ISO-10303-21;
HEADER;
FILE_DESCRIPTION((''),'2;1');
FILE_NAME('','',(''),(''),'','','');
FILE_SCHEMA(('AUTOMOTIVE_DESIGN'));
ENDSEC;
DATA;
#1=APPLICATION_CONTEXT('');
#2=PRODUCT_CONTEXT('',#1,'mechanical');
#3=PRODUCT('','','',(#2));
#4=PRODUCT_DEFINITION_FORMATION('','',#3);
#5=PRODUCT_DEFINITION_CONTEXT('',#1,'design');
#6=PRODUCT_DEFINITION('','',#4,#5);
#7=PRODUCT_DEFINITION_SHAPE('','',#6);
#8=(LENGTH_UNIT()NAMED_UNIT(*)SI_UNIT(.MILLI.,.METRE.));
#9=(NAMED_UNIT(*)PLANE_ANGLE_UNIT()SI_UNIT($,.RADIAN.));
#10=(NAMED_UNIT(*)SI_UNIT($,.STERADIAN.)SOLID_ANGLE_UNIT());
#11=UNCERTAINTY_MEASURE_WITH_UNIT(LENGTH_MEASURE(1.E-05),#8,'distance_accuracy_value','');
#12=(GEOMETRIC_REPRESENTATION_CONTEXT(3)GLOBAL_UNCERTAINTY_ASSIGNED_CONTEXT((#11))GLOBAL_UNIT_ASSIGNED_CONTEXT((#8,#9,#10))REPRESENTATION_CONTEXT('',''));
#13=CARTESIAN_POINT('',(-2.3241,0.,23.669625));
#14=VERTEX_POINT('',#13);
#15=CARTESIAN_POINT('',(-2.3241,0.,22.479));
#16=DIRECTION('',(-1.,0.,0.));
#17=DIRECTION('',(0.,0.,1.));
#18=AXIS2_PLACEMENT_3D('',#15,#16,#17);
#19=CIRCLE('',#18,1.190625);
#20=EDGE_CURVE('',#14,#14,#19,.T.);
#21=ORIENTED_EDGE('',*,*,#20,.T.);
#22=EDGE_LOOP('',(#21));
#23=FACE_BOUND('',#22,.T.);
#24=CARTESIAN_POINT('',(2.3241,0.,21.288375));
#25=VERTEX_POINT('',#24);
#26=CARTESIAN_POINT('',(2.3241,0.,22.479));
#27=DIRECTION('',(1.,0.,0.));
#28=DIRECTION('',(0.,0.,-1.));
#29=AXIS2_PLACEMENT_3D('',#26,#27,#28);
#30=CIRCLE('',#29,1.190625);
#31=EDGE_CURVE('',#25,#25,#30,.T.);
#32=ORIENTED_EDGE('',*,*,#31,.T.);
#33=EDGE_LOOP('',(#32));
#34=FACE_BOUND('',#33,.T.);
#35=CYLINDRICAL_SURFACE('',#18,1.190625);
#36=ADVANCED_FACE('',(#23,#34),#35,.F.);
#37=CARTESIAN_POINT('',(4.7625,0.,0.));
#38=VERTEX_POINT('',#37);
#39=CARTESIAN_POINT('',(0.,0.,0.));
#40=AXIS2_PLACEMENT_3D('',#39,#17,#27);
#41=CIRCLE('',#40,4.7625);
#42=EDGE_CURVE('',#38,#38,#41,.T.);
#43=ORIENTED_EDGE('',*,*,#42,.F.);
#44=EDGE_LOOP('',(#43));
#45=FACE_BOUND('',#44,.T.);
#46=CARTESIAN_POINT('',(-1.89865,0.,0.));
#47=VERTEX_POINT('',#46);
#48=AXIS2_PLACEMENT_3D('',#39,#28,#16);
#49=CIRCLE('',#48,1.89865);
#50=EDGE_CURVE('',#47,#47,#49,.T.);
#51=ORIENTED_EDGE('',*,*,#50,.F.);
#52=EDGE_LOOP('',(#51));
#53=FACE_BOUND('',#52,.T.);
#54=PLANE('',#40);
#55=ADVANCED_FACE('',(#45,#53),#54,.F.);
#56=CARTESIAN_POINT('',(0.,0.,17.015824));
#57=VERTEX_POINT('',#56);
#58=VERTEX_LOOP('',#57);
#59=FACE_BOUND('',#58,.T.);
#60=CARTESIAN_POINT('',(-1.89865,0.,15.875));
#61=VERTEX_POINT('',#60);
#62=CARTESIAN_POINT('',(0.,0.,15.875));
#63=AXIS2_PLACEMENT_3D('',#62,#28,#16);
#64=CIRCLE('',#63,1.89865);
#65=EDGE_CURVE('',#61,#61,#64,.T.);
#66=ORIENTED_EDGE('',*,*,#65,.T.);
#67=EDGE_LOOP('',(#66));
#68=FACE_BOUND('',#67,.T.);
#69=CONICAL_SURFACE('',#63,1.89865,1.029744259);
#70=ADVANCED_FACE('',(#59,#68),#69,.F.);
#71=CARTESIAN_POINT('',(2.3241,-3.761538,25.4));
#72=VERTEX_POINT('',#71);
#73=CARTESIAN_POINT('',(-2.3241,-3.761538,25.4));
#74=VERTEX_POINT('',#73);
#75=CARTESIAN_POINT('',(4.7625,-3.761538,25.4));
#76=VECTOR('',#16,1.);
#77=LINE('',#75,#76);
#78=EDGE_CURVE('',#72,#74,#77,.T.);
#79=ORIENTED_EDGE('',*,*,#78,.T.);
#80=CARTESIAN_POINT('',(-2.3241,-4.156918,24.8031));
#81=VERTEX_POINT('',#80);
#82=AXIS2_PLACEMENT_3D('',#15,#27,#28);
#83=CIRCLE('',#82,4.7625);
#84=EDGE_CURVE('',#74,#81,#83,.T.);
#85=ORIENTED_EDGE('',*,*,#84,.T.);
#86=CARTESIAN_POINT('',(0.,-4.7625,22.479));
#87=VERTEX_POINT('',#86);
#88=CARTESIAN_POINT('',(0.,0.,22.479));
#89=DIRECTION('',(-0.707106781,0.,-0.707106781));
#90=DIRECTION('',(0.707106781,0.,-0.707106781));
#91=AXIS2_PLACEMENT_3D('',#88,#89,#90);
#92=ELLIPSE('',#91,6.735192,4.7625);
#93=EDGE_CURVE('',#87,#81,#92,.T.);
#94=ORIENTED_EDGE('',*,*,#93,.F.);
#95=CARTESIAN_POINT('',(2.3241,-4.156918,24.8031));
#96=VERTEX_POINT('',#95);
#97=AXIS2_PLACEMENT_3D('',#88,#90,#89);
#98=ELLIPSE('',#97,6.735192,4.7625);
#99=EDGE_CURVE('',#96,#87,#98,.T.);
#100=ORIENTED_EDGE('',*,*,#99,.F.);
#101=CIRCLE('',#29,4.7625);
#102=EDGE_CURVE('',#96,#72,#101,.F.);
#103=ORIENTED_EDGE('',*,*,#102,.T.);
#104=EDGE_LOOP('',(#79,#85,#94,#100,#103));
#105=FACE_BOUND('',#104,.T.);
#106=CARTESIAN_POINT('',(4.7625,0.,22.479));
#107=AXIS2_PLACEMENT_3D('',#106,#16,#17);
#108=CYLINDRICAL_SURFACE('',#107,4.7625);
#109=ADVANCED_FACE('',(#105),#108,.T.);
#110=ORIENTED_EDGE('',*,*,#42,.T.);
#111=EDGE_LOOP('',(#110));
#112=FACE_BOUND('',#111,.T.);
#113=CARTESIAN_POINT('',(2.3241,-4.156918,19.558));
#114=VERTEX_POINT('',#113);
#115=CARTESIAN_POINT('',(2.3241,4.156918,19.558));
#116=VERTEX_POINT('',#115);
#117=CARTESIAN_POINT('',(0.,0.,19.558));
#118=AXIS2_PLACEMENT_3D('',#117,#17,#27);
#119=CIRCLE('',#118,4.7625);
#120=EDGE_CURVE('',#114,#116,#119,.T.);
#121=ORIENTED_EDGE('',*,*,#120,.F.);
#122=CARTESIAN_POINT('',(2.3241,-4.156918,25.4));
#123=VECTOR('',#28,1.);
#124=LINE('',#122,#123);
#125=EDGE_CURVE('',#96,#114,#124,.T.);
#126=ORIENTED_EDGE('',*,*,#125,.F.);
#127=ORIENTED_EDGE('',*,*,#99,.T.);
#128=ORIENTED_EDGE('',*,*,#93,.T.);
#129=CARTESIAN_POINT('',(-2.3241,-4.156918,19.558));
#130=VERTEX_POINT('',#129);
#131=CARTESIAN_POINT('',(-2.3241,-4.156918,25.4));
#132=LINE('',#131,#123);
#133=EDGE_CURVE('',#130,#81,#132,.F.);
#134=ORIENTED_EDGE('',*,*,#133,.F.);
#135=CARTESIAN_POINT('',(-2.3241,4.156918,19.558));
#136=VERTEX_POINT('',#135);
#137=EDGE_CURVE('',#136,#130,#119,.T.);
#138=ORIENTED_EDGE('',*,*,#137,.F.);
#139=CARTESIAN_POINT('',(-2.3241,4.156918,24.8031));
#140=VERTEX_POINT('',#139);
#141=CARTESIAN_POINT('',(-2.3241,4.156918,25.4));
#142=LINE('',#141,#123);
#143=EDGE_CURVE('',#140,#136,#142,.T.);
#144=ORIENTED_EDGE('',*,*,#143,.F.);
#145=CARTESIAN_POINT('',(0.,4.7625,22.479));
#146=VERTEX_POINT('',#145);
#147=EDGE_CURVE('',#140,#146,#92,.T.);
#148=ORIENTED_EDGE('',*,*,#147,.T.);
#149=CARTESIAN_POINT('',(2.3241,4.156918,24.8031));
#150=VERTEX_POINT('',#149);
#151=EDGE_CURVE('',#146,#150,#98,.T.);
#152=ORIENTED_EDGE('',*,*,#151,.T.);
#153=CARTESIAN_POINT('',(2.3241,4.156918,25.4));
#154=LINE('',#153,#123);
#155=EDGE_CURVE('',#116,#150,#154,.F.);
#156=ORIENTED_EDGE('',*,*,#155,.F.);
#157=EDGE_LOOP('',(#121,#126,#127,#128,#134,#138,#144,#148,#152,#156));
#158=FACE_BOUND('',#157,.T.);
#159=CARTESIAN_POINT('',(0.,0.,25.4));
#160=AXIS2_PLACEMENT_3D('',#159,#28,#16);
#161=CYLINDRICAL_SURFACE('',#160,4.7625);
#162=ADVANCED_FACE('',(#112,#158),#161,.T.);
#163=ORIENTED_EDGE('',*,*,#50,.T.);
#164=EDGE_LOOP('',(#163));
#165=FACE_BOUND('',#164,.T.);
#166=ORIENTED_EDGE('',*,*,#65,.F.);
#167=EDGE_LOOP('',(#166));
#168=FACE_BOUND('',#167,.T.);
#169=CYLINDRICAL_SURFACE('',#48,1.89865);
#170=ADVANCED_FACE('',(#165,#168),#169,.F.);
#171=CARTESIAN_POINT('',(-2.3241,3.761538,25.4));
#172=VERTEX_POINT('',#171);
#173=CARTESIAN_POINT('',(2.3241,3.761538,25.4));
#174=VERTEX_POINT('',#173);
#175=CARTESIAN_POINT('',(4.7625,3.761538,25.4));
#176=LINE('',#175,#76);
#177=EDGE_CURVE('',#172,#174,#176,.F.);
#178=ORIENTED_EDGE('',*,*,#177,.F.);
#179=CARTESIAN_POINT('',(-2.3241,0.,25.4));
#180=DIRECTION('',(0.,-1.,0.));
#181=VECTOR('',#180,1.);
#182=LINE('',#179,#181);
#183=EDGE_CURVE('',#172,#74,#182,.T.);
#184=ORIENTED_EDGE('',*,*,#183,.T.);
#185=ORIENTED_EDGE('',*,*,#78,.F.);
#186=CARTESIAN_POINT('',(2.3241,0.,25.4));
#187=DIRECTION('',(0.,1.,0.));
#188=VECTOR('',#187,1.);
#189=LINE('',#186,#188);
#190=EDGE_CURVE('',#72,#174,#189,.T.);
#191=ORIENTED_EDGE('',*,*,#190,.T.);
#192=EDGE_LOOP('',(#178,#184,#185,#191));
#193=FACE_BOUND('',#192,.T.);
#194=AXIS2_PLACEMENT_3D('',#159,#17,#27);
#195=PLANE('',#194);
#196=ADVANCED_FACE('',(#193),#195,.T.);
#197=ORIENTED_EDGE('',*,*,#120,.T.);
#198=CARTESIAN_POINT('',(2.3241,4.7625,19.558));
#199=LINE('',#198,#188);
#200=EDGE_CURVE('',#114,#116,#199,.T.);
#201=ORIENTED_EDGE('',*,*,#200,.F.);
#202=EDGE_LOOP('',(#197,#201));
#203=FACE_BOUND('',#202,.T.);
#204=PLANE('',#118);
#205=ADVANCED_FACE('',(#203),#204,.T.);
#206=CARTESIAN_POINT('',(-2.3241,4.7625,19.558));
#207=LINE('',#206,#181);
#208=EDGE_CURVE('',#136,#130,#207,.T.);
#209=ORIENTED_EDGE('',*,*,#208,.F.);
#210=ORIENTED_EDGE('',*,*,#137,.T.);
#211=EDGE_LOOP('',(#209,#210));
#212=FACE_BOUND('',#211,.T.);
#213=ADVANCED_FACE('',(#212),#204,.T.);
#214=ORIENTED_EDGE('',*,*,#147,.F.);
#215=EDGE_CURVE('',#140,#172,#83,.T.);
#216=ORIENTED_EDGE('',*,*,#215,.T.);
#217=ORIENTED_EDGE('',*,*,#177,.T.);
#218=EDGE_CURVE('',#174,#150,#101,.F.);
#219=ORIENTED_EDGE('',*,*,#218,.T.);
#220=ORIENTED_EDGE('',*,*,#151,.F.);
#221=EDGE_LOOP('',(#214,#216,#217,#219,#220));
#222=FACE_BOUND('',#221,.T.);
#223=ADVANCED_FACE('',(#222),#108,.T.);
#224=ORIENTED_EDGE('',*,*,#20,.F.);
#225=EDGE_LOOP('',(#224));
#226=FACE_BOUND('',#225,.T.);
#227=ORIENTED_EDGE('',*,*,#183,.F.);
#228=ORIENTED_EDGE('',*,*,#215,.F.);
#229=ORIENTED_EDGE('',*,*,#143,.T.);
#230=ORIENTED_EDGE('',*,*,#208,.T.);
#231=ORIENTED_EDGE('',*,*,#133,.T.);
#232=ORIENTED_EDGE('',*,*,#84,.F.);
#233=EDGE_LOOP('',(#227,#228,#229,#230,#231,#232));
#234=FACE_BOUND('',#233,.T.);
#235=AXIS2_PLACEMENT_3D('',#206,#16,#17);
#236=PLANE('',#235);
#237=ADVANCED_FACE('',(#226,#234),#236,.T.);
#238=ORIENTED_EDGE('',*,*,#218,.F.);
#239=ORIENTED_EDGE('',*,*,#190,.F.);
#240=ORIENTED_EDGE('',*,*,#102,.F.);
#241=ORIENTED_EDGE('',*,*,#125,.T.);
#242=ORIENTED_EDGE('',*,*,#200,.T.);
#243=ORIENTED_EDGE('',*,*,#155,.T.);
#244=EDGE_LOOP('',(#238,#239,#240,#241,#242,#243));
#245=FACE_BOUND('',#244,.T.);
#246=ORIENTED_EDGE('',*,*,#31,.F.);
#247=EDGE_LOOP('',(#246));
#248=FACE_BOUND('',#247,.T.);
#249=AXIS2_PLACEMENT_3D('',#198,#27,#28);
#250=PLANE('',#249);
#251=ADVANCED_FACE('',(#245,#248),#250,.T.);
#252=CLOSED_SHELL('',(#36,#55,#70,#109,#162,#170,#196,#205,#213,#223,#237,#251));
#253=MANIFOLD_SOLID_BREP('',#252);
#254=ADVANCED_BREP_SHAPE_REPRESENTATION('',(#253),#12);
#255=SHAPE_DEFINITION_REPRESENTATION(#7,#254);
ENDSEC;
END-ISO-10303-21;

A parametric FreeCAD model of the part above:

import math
import FreeCAD as App
import Part
import Sketcher
from FreeCAD import Vector
Q = App.Units.Quantity


def add_polygon(sketch, points):
    """Adds a closed chain of lines whose ends are joined by coincident constraints."""
    first, n = sketch.GeometryCount, len(points)
    for a, b in zip(points, points[1:] + points[:1]):
        sketch.addGeometry(Part.LineSegment(App.Vector(*a, 0), App.Vector(*b, 0)), False)
    for i in range(n):
        sketch.addConstraint(Sketcher.Constraint("Coincident", first + i, 2, first + (i + 1) % n, 1))

doc = App.newDocument("Part")
params = doc.addObject("Spreadsheet::Sheet", "Params")
for row, (alias, value) in enumerate([
    ("sketch1_diameter", "0.375 in"),
    ("pad1_length", "1 in"),
    ("sketch2_width", "0.183 in"),
    ("sketch2_height", "0.375 in"),
    ("pocket1_length", "0.23 in"),
    ("sketch3_diameter", "0.09375 in"),
    ("hole_diameter", "0.09375 in"),
    ("sketch4_radius", "0.1875 in"),
    ("hole2_diameter", "0.1495 in"),
    ("hole2_depth", "0.625 in"),
], start=1):
    params.set(f"A{row}", alias)
    params.set(f"B{row}", "=" + value)
    params.setAlias(f"B{row}", alias)

body = doc.addObject("PartDesign::Body", "Body")

sketch1 = doc.addObject("Sketcher::SketchObject", "Sketch")
body.addObject(sketch1)
sketch1.AttachmentSupport = (doc.XY_Plane, [""])
sketch1.MapMode = "FlatFace"
sketch1.addGeometry(Part.Circle(Vector(0, 0, 0), Vector(0, 0, 1), 4.7625), False)
sketch1.addConstraint([
    Sketcher.Constraint("Coincident", 0, 3, -1, 1),
    Sketcher.Constraint("Diameter", 0, Q("0.375 in")),
])
sketch1.setExpression("Constraints[1]", "Params.sketch1_diameter")
pad1 = doc.addObject("PartDesign::Pad", "Pad")
body.addObject(pad1)
pad1.Profile = sketch1
pad1.setExpression("Length", "Params.pad1_length")

sketch2 = doc.addObject("Sketcher::SketchObject", "Sketch001")
body.addObject(sketch2)
sketch2.AttachmentSupport = (doc.XY_Plane, [""])
sketch2.MapMode = "FlatFace"
sketch2.AttachmentOffset = App.Placement(Vector(0, 0, 1 * 25.4), App.Rotation())
add_polygon(sketch2, [(-8.637, 8.637), (-8.637, -8.637), (8.637, -8.637), (8.637, 8.637)])
add_polygon(sketch2, [(2.3241, -4.7625), (-2.3241, -4.7625), (-2.3241, 4.7625), (2.3241, 4.7625)])
sketch2.addConstraint([
    Sketcher.Constraint("Vertical", 0),
    Sketcher.Constraint("Horizontal", 1),
    Sketcher.Constraint("Vertical", 2),
    Sketcher.Constraint("Horizontal", 3),
    Sketcher.Constraint("Horizontal", 4),
    Sketcher.Constraint("Vertical", 5),
    Sketcher.Constraint("Horizontal", 6),
    Sketcher.Constraint("Vertical", 7),
    Sketcher.Constraint("Symmetric", 0, 2, 2, 2, -1, 1),
    Sketcher.Constraint("Symmetric", 4, 2, 6, 2, -1, 1),
    Sketcher.Constraint("Equal", 3, 0),
    Sketcher.Constraint("DistanceX", 4, 2, 4, 1, Q("0.183 in")),
    Sketcher.Constraint("DistanceY", 5, 1, 5, 2, Q("0.375 in")),
    Sketcher.Constraint("DistanceX", 1, 1, 1, 2, Q("17.274 mm")),
])
sketch2.setExpression("Constraints[19]", "Params.sketch2_width")
sketch2.setExpression("Constraints[20]", "Params.sketch2_height")
pocket1 = doc.addObject("PartDesign::Pocket", "Pocket")
body.addObject(pocket1)
pocket1.Profile = sketch2
pocket1.setExpression("Length", "Params.pocket1_length")

sketch3 = doc.addObject("Sketcher::SketchObject", "Sketch002")
body.addObject(sketch3)
sketch3.AttachmentSupport = (doc.YZ_Plane, [""])
sketch3.MapMode = "FlatFace"
sketch3.AttachmentOffset = App.Placement(Vector(0, 0, -0.0915 * 25.4), App.Rotation())
sketch3.addGeometry(Part.Circle(Vector(0, 22.479, 0), Vector(0, 0, 1), 1.190625), False)
sketch3.addConstraint([
    Sketcher.Constraint("PointOnObject", 0, 3, -2),
    Sketcher.Constraint("Diameter", 0, Q("0.09375 in")),
    Sketcher.Constraint("DistanceY", -1, 1, 0, 3, Q("0.885 in")),
])
sketch3.setExpression("Constraints[1]", "Params.sketch3_diameter")
doc.recompute()
hole = doc.addObject("PartDesign::Hole", "Hole")
body.addObject(hole)
hole.Profile = sketch3
hole.ThreadType = "None"
hole.setExpression("Diameter", "Params.hole_diameter")
hole.DepthType = "ThroughAll"
hole.Reversed = True

sketch4 = doc.addObject("Sketcher::SketchObject", "Sketch003")
body.addObject(sketch4)
sketch4.AttachmentSupport = (doc.YZ_Plane, [""])
sketch4.MapMode = "FlatFace"
sketch4.AttachmentOffset = App.Placement(Vector(0, 0, -0.0915 * 25.4), App.Rotation())
sketch4.addGeometry([
    Part.LineSegment(Vector(4.7625, 32.004, 0), Vector(4.7625, 22.479, 0)),
    Part.ArcOfCircle(Part.Circle(Vector(0, 22.479, 0), Vector(0, 0, 1), 4.7625), math.radians(0), math.radians(180)),
    Part.LineSegment(Vector(-4.7625, 22.479, 0), Vector(-4.7625, 32.004, 0)),
    Part.LineSegment(Vector(-4.7625, 32.004, 0), Vector(4.7625, 32.004, 0)),
], False)
sketch4.addConstraint([
    Sketcher.Constraint("Tangent", 0, 2, 1, 1),
    Sketcher.Constraint("Tangent", 1, 2, 2, 1),
    Sketcher.Constraint("Coincident", 2, 2, 3, 1),
    Sketcher.Constraint("Coincident", 3, 2, 0, 1),
    Sketcher.Constraint("Vertical", 0),
    Sketcher.Constraint("Vertical", 2),
    Sketcher.Constraint("Horizontal", 3),
    Sketcher.Constraint("PointOnObject", 1, 3, -2),
    Sketcher.Constraint("Equal", 3, 0),
    Sketcher.Constraint("Radius", 1, Q("0.1875 in")),
    Sketcher.Constraint("DistanceY", -1, 1, 2, 2, Q("1.26 in")),
])
sketch4.setExpression("Constraints[9]", "Params.sketch4_radius")
pocket2 = doc.addObject("PartDesign::Pocket", "Pocket001")
body.addObject(pocket2)
pocket2.Profile = sketch4
pocket2.Type = "ThroughAll"
pocket2.Reversed = True

sketch5 = doc.addObject("Sketcher::SketchObject", "Sketch004")
body.addObject(sketch5)
sketch5.AttachmentSupport = (doc.XY_Plane, [""])
sketch5.MapMode = "FlatFace"
sketch5.addGeometry(Part.Circle(Vector(0, 0, 0), Vector(0, 0, 1), 1.89865), False)
sketch5.addConstraint([
    Sketcher.Constraint("Coincident", 0, 3, -1, 1),
    Sketcher.Constraint("Diameter", 0, Q("0.1495 in")),
])
doc.recompute()
hole2 = doc.addObject("PartDesign::Hole", "Hole001")
body.addObject(hole2)
hole2.Profile = sketch5
hole2.ThreadType = "None"
hole2.setExpression("Diameter", "Params.hole2_diameter")
hole2.DepthType = "Dimension"
hole2.setExpression("Depth", "Params.hole2_depth")
hole2.DrillPoint = "Angled"
hole2.DrillPointAngle = 118
hole2.Reversed = True

doc.recompute()
